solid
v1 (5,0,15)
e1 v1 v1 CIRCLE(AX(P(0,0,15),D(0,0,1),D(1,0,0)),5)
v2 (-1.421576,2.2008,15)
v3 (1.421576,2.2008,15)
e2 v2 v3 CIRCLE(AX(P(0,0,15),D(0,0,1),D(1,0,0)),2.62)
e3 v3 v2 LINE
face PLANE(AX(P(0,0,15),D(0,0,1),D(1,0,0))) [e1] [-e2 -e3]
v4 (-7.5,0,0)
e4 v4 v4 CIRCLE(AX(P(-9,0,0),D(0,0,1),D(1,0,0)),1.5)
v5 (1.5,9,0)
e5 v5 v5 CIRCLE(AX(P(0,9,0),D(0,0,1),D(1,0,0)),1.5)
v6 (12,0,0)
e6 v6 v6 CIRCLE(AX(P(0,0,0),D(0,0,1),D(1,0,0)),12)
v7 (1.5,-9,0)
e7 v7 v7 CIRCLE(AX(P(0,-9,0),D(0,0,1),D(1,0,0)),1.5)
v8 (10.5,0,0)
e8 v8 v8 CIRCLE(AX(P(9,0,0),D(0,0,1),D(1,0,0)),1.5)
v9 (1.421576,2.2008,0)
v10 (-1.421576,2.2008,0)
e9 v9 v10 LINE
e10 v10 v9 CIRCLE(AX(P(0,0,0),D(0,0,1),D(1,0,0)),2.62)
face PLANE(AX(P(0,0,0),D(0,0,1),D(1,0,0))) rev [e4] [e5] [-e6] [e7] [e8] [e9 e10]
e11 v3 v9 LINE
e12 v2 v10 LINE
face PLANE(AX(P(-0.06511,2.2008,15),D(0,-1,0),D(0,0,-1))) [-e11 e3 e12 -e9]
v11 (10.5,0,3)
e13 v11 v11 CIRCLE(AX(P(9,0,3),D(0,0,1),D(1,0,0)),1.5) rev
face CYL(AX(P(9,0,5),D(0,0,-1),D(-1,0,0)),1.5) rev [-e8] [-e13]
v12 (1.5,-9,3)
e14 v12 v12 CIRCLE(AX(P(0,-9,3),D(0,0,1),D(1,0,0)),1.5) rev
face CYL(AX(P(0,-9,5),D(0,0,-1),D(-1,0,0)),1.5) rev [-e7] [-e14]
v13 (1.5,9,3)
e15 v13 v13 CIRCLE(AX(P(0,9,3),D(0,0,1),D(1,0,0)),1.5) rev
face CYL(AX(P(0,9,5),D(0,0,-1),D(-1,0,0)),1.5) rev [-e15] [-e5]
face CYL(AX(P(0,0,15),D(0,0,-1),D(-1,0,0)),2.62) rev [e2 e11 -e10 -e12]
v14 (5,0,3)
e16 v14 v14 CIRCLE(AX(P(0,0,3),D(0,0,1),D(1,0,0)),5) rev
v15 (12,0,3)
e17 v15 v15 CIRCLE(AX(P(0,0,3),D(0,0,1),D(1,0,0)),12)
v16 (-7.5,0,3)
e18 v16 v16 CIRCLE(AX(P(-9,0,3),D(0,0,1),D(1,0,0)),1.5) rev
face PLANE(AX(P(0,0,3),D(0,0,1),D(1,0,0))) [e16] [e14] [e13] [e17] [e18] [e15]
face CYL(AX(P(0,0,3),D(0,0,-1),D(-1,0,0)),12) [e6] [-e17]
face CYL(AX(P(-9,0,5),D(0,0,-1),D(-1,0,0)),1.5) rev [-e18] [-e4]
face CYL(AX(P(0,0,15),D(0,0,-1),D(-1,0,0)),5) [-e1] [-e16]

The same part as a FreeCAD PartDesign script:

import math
import FreeCAD as App
import Part
import Sketcher

V = App.Vector
Q = App.Units.Quantity

doc = App.newDocument("Part")
body = doc.addObject("PartDesign::Body", "Body")

sketch1 = doc.addObject("Sketcher::SketchObject", "Sketch")
body.addObject(sketch1)
sketch1.AttachmentSupport = (doc.XY_Plane, [""])
sketch1.MapMode = "FlatFace"
sketch1.addGeometry(Part.Circle(V(0, 0, 0), V(0, 0, 1), 12), False)
sketch1.addConstraint([
    Sketcher.Constraint("Coincident", 0, 3, -1, 1),
    Sketcher.Constraint("Diameter", 0, Q("24 mm")),
])
pad1 = doc.addObject("PartDesign::Pad", "Pad")
body.addObject(pad1)
pad1.Profile = sketch1
pad1.Length = 3

sketch2 = doc.addObject("Sketcher::SketchObject", "Sketch001")
body.addObject(sketch2)
sketch2.AttachmentSupport = (doc.XY_Plane, [""])
sketch2.MapMode = "FlatFace"
sketch2.addGeometry(Part.Circle(V(0, 0, 0), V(0, 0, 1), 5), False)
sketch2.addConstraint([
    Sketcher.Constraint("Coincident", 0, 3, -1, 1),
    Sketcher.Constraint("Diameter", 0, Q("10 mm")),
])
pad2 = doc.addObject("PartDesign::Pad", "Pad001")
body.addObject(pad2)
pad2.Profile = sketch2
pad2.Length = 15

sketch3 = doc.addObject("Sketcher::SketchObject", "Sketch002")
body.addObject(sketch3)
sketch3.AttachmentSupport = (doc.XY_Plane, [""])
sketch3.MapMode = "FlatFace"
sketch3.addGeometry([
    Part.ArcOfCircle(Part.Circle(V(0, 0, 0), V(0, 0, 1), 2.62), math.radians(122.85988), math.radians(417.14012)),
    Part.LineSegment(V(1.421576, 2.2008, 0), V(-1.421576, 2.2008, 0)),
], False)
sketch3.addConstraint([
    Sketcher.Constraint("Coincident", 0, 1, 1, 2),
    Sketcher.Constraint("Coincident", 1, 1, 0, 2),
    Sketcher.Constraint("Horizontal", 1),
    Sketcher.Constraint("Coincident", 0, 3, -1, 1),
    Sketcher.Constraint("Radius", 0, Q("2.62 mm")),
    Sketcher.Constraint("DistanceY", -1, 1, 0, 1, Q("2.2008 mm")),
])
pocket1 = doc.addObject("PartDesign::Pocket", "Pocket")
body.addObject(pocket1)
pocket1.Profile = sketch3
pocket1.Length = 15
pocket1.Reversed = True

sketch4 = doc.addObject("Sketcher::SketchObject", "Sketch003")
body.addObject(sketch4)
sketch4.AttachmentSupport = (doc.XY_Plane, [""])
sketch4.MapMode = "FlatFace"
sketch4.addGeometry([
    Part.Circle(V(-9, 0, 0), V(0, 0, 1), 1.5),
    Part.Circle(V(0, 9, 0), V(0, 0, 1), 1.5),
    Part.Circle(V(9, 0, 0), V(0, 0, 1), 1.5),
    Part.Circle(V(0, -9, 0), V(0, 0, 1), 1.5),
], False)
sketch4.addConstraint([
    Sketcher.Constraint("Equal", 0, 1),
    Sketcher.Constraint("Equal", 1, 2),
    Sketcher.Constraint("Equal", 2, 3),
    Sketcher.Constraint("Symmetric", 0, 3, 2, 3, -1, 1),
    Sketcher.Constraint("Symmetric", 1, 3, 3, 3, -1, 1),
    Sketcher.Constraint("PointOnObject", 0, 3, -1),
    Sketcher.Constraint("PointOnObject", 1, 3, -2),
    Sketcher.Constraint("Diameter", 0, Q("3 mm")),
    Sketcher.Constraint("DistanceX", 0, 3, -1, 1, Q("9 mm")),
    Sketcher.Constraint("DistanceY", -1, 1, 1, 3, Q("9 mm")),
])
pocket2 = doc.addObject("PartDesign::Pocket", "Pocket001")
body.addObject(pocket2)
pocket2.Profile = sketch4
pocket2.Length = 5
pocket2.Reversed = True

doc.recompute()
